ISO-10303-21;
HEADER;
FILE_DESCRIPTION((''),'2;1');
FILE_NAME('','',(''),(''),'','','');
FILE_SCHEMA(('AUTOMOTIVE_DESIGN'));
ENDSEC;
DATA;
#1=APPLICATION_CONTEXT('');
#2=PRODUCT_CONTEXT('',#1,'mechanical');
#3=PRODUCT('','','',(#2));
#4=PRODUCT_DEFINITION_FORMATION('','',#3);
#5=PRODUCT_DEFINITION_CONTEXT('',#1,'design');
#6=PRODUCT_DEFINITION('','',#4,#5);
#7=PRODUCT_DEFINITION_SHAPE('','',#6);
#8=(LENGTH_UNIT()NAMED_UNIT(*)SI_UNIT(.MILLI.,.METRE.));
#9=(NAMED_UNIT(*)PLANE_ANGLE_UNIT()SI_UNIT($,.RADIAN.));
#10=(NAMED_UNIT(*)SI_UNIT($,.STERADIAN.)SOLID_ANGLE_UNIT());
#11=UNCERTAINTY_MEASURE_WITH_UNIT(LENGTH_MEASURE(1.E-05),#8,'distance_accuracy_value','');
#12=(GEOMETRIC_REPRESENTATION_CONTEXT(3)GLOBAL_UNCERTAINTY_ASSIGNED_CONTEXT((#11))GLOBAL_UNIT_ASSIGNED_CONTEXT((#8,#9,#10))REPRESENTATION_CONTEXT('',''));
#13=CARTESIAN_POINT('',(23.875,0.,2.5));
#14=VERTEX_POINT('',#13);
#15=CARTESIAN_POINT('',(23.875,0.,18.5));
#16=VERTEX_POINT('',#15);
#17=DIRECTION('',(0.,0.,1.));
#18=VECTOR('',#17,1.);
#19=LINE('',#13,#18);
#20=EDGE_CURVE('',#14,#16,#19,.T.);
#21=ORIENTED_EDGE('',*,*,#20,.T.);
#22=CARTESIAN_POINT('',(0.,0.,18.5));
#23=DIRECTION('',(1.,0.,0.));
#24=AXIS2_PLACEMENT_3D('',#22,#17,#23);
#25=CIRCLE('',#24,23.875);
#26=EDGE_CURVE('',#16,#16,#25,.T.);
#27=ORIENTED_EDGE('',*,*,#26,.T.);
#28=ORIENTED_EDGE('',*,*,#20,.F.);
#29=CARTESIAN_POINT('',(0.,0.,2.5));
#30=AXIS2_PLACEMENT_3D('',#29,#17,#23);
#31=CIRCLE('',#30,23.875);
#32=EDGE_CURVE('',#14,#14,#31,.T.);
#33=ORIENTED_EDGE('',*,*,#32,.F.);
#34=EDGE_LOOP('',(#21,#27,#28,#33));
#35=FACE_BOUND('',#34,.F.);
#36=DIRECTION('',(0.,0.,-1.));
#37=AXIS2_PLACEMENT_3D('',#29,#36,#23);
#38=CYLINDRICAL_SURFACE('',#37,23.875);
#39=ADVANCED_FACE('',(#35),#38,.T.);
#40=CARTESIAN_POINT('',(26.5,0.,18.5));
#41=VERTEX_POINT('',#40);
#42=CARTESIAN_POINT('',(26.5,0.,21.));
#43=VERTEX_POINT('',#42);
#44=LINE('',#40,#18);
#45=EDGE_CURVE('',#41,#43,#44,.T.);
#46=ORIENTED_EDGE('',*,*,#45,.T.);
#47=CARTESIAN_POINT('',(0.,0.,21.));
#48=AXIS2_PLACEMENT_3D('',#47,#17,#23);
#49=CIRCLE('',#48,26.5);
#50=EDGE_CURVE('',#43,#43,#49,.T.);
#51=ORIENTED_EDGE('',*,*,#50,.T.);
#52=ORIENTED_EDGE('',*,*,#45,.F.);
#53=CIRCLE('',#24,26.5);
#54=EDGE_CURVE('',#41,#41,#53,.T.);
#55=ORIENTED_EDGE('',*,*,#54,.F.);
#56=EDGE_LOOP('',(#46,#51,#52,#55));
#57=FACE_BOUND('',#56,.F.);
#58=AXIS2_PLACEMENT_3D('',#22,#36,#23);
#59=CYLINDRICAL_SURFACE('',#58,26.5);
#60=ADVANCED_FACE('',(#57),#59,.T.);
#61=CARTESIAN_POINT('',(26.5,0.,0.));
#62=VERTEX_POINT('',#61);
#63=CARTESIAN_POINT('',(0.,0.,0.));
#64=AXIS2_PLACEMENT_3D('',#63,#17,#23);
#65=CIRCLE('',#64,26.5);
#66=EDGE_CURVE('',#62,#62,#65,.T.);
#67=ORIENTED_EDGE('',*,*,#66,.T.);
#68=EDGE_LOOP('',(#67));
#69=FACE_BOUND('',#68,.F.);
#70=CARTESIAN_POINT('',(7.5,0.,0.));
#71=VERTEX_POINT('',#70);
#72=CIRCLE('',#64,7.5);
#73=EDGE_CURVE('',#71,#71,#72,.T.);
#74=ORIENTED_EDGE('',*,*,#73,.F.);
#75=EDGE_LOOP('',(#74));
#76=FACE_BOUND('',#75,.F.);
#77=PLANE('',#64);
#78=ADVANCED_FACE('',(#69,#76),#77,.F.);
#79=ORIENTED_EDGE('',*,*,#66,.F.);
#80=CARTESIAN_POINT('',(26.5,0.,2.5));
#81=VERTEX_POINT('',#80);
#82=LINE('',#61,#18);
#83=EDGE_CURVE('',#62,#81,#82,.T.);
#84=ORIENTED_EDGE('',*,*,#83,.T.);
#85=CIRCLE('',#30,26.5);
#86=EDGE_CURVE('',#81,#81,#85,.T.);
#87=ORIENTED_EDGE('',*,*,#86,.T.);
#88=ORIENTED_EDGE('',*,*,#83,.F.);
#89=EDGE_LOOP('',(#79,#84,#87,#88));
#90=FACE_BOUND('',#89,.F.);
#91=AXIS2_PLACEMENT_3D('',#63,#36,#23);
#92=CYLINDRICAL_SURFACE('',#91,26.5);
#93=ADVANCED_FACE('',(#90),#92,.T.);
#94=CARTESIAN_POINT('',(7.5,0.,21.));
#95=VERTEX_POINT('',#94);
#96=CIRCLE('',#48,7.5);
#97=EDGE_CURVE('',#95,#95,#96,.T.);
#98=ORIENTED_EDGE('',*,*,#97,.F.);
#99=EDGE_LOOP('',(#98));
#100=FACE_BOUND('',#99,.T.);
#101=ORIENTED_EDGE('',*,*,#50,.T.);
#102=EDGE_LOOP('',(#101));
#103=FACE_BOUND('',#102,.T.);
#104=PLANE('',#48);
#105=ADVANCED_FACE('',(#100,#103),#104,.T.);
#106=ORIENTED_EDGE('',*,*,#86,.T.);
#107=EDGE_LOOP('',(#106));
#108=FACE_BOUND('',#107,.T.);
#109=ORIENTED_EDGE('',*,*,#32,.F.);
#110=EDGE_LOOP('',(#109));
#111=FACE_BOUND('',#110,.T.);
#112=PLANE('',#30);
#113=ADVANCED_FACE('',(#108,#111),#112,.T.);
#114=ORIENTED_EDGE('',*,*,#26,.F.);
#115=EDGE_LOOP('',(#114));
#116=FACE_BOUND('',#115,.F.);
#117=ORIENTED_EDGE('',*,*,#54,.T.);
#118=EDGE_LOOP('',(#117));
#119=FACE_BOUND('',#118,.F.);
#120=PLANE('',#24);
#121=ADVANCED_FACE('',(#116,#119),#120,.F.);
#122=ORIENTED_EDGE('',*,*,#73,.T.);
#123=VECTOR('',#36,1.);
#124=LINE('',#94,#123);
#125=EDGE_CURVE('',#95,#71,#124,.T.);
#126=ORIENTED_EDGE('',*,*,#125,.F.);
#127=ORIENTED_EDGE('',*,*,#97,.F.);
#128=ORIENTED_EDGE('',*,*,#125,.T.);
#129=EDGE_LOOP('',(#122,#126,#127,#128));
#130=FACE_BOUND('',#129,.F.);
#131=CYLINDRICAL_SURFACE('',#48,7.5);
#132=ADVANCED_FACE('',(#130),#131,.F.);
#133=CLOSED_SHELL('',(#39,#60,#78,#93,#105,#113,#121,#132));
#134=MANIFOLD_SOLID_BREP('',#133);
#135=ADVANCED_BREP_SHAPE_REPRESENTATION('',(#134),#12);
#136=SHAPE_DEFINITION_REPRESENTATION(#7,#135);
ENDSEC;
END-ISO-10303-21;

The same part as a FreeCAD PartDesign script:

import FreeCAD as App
import Part
import Sketcher

V = App.Vector
Q = App.Units.Quantity

doc = App.newDocument("Part")
body = doc.addObject("PartDesign::Body", "Body")

# Sketch on XY plane
sketch1 = body.newObject("Sketcher::SketchObject", "Sketch")
sketch1.AttachmentSupport = (doc.getObject("XY_Plane"), [""])
sketch1.MapMode = "FlatFace"
sketch1.addGeometry(Part.Circle(V(0, 0, 0), V(0, 0, 1), 26.5), False)
sketch1.addConstraint([
    Sketcher.Constraint("Coincident", 0, 3, -1, 1),
    Sketcher.Constraint("Diameter", 0, Q("53 mm")),
])
pad1 = body.newObject("PartDesign::Pad", "Pad")
pad1.Profile = sketch1
pad1.Length = 2.5

# Sketch on XY plane
sketch2 = body.newObject("Sketcher::SketchObject", "Sketch001")
sketch2.AttachmentSupport = (doc.getObject("XY_Plane"), [""])
sketch2.MapMode = "FlatFace"
sketch2.AttachmentOffset = App.Placement(V(0, 0, 2.5), App.Rotation())
sketch2.addGeometry(Part.Circle(V(0, 0, 0), V(0, 0, 1), 23.875), False)
sketch2.addConstraint([
    Sketcher.Constraint("Coincident", 0, 3, -1, 1),
    Sketcher.Constraint("Diameter", 0, Q("47.75 mm")),
])
pad2 = body.newObject("PartDesign::Pad", "Pad001")
pad2.Profile = sketch2
pad2.Length = 16

# Sketch on XY plane
sketch3 = body.newObject("Sketcher::SketchObject", "Sketch002")
sketch3.AttachmentSupport = (doc.getObject("XY_Plane"), [""])
sketch3.MapMode = "FlatFace"
sketch3.AttachmentOffset = App.Placement(V(0, 0, 18.5), App.Rotation())
sketch3.addGeometry(Part.Circle(V(0, 0, 0), V(0, 0, 1), 26.5), False)
sketch3.addConstraint([
    Sketcher.Constraint("Coincident", 0, 3, -1, 1),
    Sketcher.Constraint("Diameter", 0, Q("53 mm")),
])
pad3 = body.newObject("PartDesign::Pad", "Pad002")
pad3.Profile = sketch3
pad3.Length = 2.5

# Sketch on XY plane
sketch4 = body.newObject("Sketcher::SketchObject", "Sketch003")
sketch4.AttachmentSupport = (doc.getObject("XY_Plane"), [""])
sketch4.MapMode = "FlatFace"
sketch4.AttachmentOffset = App.Placement(V(0, 0, 21), App.Rotation())
sketch4.addGeometry(Part.Circle(V(0, 0, 0), V(0, 0, 1), 7.5), False)
sketch4.addConstraint([
    Sketcher.Constraint("Coincident", 0, 3, -1, 1),
    Sketcher.Constraint("Diameter", 0, Q("15 mm")),
])
pocket1 = body.newObject("PartDesign::Pocket", "Pocket")
pocket1.Profile = sketch4
pocket1.Length = 30

doc.recompute()
